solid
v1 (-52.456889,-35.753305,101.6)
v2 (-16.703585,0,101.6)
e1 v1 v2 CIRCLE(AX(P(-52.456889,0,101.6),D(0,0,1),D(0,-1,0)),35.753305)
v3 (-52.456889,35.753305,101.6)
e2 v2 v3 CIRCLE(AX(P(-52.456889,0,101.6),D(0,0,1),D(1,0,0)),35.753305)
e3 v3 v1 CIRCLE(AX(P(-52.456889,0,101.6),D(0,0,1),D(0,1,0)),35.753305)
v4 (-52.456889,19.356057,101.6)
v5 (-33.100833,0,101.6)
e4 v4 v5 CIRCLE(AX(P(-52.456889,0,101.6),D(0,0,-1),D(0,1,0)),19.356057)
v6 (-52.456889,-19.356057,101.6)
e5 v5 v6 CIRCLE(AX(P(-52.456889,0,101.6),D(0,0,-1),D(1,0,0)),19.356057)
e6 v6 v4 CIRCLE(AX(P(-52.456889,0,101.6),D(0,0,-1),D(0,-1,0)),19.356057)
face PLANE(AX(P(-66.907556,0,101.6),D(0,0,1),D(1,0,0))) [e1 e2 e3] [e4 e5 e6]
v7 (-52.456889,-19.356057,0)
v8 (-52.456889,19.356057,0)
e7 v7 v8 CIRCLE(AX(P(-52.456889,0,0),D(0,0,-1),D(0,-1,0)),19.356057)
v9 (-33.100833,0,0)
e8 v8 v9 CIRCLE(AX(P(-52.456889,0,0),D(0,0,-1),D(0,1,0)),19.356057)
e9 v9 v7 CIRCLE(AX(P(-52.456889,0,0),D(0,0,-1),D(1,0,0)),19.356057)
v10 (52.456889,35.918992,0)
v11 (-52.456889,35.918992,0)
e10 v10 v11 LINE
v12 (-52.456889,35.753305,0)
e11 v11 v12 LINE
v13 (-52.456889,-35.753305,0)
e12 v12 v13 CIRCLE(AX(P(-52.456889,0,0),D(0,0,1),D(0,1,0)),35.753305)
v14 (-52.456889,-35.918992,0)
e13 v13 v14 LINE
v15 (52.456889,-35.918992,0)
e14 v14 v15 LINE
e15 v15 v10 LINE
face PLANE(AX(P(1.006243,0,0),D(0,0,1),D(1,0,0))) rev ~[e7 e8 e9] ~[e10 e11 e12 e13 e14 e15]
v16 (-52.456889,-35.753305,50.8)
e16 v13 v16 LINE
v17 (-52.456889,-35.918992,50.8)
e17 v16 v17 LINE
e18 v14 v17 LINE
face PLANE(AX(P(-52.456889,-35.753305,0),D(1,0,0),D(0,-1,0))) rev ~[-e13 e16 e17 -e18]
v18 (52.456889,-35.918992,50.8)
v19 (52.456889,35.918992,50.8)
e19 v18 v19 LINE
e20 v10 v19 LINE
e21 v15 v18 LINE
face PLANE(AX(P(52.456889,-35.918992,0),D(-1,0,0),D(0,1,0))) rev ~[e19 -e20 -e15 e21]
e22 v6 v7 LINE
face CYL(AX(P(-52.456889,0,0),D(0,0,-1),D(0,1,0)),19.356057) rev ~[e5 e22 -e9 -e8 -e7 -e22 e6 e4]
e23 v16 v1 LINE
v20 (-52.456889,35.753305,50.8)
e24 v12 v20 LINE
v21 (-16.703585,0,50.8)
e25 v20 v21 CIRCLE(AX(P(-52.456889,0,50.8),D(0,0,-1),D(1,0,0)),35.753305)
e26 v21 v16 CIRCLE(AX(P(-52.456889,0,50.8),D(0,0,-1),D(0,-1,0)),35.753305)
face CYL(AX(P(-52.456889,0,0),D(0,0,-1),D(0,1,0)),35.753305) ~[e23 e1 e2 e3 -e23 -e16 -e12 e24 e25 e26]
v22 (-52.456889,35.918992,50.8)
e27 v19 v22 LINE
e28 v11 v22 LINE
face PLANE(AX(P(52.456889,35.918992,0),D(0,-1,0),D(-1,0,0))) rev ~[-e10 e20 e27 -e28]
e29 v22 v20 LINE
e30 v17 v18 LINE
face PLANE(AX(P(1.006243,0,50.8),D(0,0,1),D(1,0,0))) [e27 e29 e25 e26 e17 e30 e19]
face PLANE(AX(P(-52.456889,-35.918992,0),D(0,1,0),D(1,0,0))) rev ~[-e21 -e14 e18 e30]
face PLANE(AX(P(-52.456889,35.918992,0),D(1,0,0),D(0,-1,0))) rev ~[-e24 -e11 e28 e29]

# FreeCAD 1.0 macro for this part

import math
import FreeCAD as App
import Part
import Sketcher
Q = App.Units.Quantity

doc = App.newDocument("Part")
params = doc.addObject("Spreadsheet::Sheet", "Params")
for row, (alias, value) in enumerate([
    ("pad1_length", "2 in"),
    ("pad2_length", "4 in"),
], start=1):
    params.set(f"A{row}", alias)
    params.set(f"B{row}", "=" + value)
    params.setAlias(f"B{row}", alias)

body = doc.addObject("PartDesign::Body", "Body")

# Sketch on XY plane
sketch1 = body.newObject("Sketcher::SketchObject", "Sketch")
sketch1.AttachmentSupport = (doc.getObject("XY_Plane"), [""])
sketch1.MapMode = "FlatFace"
sketch1.addGeometry([
    Part.LineSegment(App.Vector(-52.46, -35.92, 0), App.Vector(52.46, -35.92, 0)),  # 0
    Part.LineSegment(App.Vector(52.46, -35.92, 0), App.Vector(52.46, 35.92, 0)),  # 1
    Part.LineSegment(App.Vector(52.46, 35.92, 0), App.Vector(-52.46, 35.92, 0)),  # 2
    Part.LineSegment(App.Vector(-52.46, 35.92, 0), App.Vector(-52.46, 35.75, 0)),  # 3
    Part.ArcOfCircle(Part.Circle(App.Vector(-52.46, 0, 0), App.Vector(0, 0, 1), 35.75), math.radians(90), math.radians(270)),  # 4
    Part.LineSegment(App.Vector(-52.46, -35.75, 0), App.Vector(-52.46, -35.92, 0)),  # 5
    Part.ArcOfCircle(Part.Circle(App.Vector(-52.46, 0, 0), App.Vector(0, 0, 1), 19.36), math.radians(0), math.radians(90)),  # 6
    Part.ArcOfCircle(Part.Circle(App.Vector(-52.46, 0, 0), App.Vector(0, 0, 1), 19.36), math.radians(-90), math.radians(0)),  # 7
    Part.ArcOfCircle(Part.Circle(App.Vector(-52.46, 0, 0), App.Vector(0, 0, 1), 19.36), math.radians(90), math.radians(270)),  # 8
], False)
sketch1.addConstraint([
    Sketcher.Constraint("Coincident", 0, 2, 1, 1),
    Sketcher.Constraint("Coincident", 1, 2, 2, 1),
    Sketcher.Constraint("Coincident", 2, 2, 3, 1),
    Sketcher.Constraint("Coincident", 3, 2, 4, 1),
    Sketcher.Constraint("Coincident", 4, 2, 5, 1),
    Sketcher.Constraint("Coincident", 5, 2, 0, 1),
    Sketcher.Constraint("Tangent", 6, 1, 7, 2),
    Sketcher.Constraint("Tangent", 7, 1, 8, 2),
    Sketcher.Constraint("Tangent", 8, 1, 6, 2),
    Sketcher.Constraint("Horizontal", 0),
    Sketcher.Constraint("Vertical", 1),
    Sketcher.Constraint("Horizontal", 2),
    Sketcher.Constraint("Vertical", 3),
    Sketcher.Constraint("Vertical", 5),
    Sketcher.Constraint("Coincident", 6, 3, 4, 3),
    Sketcher.Constraint("Symmetric", 0, 2, 2, 2, -1, 1),
    Sketcher.Constraint("Symmetric", 3, 2, 4, 2, -1),
    Sketcher.Constraint("PointOnObject", 6, 1, -1),
    Sketcher.Constraint("Vertical", 8, 3, 2, 2),
    Sketcher.Constraint("Vertical", 5, 2, 7, 1),
    Sketcher.Constraint("Vertical", 7, 1, 8, 1),
    Sketcher.Constraint("Radius", 4, Q("35.753305 mm")),
    Sketcher.Constraint("Radius", 6, Q("19.356057 mm")),
    Sketcher.Constraint("DistanceX", 0, 1, 0, 2, Q("104.913779 mm")),
    Sketcher.Constraint("DistanceY", 1, 1, 1, 2, Q("71.837985 mm")),
])
pad1 = body.newObject("PartDesign::Pad", "Pad")
pad1.Profile = sketch1
pad1.setExpression("Length", "Params.pad1_length")

# Sketch on XY plane
sketch2 = body.newObject("Sketcher::SketchObject", "Sketch001")
sketch2.AttachmentSupport = (doc.getObject("XY_Plane"), [""])
sketch2.MapMode = "FlatFace"
sketch2.addGeometry([
    Part.ArcOfCircle(Part.Circle(App.Vector(-52, 0, 0), App.Vector(0, 0, 1), 36), math.radians(90), math.radians(270)),  # 0
    Part.ArcOfCircle(Part.Circle(App.Vector(-52, 0, 0), App.Vector(0, 0, 1), 36), math.radians(-90), math.radians(0)),  # 1
    Part.ArcOfCircle(Part.Circle(App.Vector(-52, 0, 0), App.Vector(0, 0, 1), 36), math.radians(0), math.radians(90)),  # 2
    Part.ArcOfCircle(Part.Circle(App.Vector(-52, 0, 0), App.Vector(0, 0, 1), 19), math.radians(90), math.radians(270)),  # 3
    Part.ArcOfCircle(Part.Circle(App.Vector(-52, 0, 0), App.Vector(0, 0, 1), 19), math.radians(0), math.radians(90)),  # 4
    Part.ArcOfCircle(Part.Circle(App.Vector(-52, 0, 0), App.Vector(0, 0, 1), 19), math.radians(-90), math.radians(0)),  # 5
], False)
sketch2.addConstraint([
    Sketcher.Constraint("Tangent", 0, 2, 1, 1),
    Sketcher.Constraint("Tangent", 1, 2, 2, 1),
    Sketcher.Constraint("Tangent", 2, 2, 0, 1),
    Sketcher.Constraint("Tangent", 3, 1, 4, 2),
    Sketcher.Constraint("Tangent", 4, 1, 5, 2),
    Sketcher.Constraint("Tangent", 5, 1, 3, 2),
    Sketcher.Constraint("Coincident", 3, 3, 0, 3),
    Sketcher.Constraint("Symmetric", 0, 2, 2, 2, -1),
    Sketcher.Constraint("PointOnObject", 1, 2, -1),
    Sketcher.Constraint("PointOnObject", 4, 1, -1),
    Sketcher.Constraint("Vertical", 5, 3, 0, 2),
    Sketcher.Constraint("Vertical", 2, 2, 3, 1),
    Sketcher.Constraint("Vertical", 3, 1, 5, 1),
    Sketcher.Constraint("Radius", 0, Q("35.753305 mm")),
    Sketcher.Constraint("Radius", 3, Q("19.356057 mm")),
    Sketcher.Constraint("DistanceX", 0, 3, -1, 1, Q("52.456889 mm")),
])
pad2 = body.newObject("PartDesign::Pad", "Pad001")
pad2.Profile = sketch2
pad2.setExpression("Length", "Params.pad2_length")

doc.recompute()
